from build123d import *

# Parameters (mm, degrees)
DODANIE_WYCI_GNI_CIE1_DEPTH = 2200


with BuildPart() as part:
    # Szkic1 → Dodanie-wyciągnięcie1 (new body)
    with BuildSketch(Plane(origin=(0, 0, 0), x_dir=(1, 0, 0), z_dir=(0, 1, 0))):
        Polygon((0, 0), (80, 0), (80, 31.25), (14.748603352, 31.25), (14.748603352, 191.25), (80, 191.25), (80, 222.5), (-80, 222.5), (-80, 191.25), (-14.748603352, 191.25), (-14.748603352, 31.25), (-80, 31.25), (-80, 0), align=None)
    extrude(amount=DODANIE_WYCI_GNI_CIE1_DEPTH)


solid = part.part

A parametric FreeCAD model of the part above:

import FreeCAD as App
import Part
import Sketcher

doc = App.newDocument("Part")
body = doc.addObject("PartDesign::Body", "Body")

# Sketch on XZ plane
sketch1 = doc.addObject("Sketcher::SketchObject", "Sketch")
body.addObject(sketch1)
sketch1.AttachmentSupport = (doc.XZ_Plane, [""])
sketch1.MapMode = "FlatFace"
sketch1.addGeometry([
    Part.LineSegment(App.Vector(80, 0, 0), App.Vector(80, -31, 0)),  # 0
    Part.LineSegment(App.Vector(80, -31, 0), App.Vector(15, -31, 0)),  # 1
    Part.LineSegment(App.Vector(15, -31, 0), App.Vector(15, -191, 0)),  # 2
    Part.LineSegment(App.Vector(15, -191, 0), App.Vector(80, -191, 0)),  # 3
    Part.LineSegment(App.Vector(80, -191, 0), App.Vector(80, -222, 0)),  # 4
    Part.LineSegment(App.Vector(80, -222, 0), App.Vector(-80, -222, 0)),  # 5
    Part.LineSegment(App.Vector(-80, -222, 0), App.Vector(-80, -191, 0)),  # 6
    Part.LineSegment(App.Vector(-80, -191, 0), App.Vector(-15, -191, 0)),  # 7
    Part.LineSegment(App.Vector(-15, -191, 0), App.Vector(-15, -31, 0)),  # 8
    Part.LineSegment(App.Vector(-15, -31, 0), App.Vector(-80, -31, 0)),  # 9
    Part.LineSegment(App.Vector(-80, -31, 0), App.Vector(-80, 0, 0)),  # 10
    Part.LineSegment(App.Vector(-80, 0, 0), App.Vector(80, 0, 0)),  # 11
], False)
sketch1.addConstraint([
    Sketcher.Constraint("Coincident", 0, 2, 1, 1),
    Sketcher.Constraint("Coincident", 1, 2, 2, 1),
    Sketcher.Constraint("Coincident", 2, 2, 3, 1),
    Sketcher.Constraint("Coincident", 3, 2, 4, 1),
    Sketcher.Constraint("Coincident", 4, 2, 5, 1),
    Sketcher.Constraint("Coincident", 5, 2, 6, 1),
    Sketcher.Constraint("Coincident", 6, 2, 7, 1),
    Sketcher.Constraint("Coincident", 7, 2, 8, 1),
    Sketcher.Constraint("Coincident", 8, 2, 9, 1),
    Sketcher.Constraint("Coincident", 9, 2, 10, 1),
    Sketcher.Constraint("Coincident", 10, 2, 11, 1),
    Sketcher.Constraint("Coincident", 11, 2, 0, 1),
    Sketcher.Constraint("Vertical", 0),
    Sketcher.Constraint("Horizontal", 1),
    Sketcher.Constraint("Vertical", 2),
    Sketcher.Constraint("Horizontal", 3),
    Sketcher.Constraint("Vertical", 4),
    Sketcher.Constraint("Horizontal", 5),
    Sketcher.Constraint("Vertical", 6),
    Sketcher.Constraint("Horizontal", 7),
    Sketcher.Constraint("Vertical", 8),
    Sketcher.Constraint("Horizontal", 9),
    Sketcher.Constraint("Vertical", 10),
    Sketcher.Constraint("Horizontal", 11),
    Sketcher.Constraint("Symmetric", 10, 2, 11, 2, -1, 1),
    Sketcher.Constraint("Symmetric", 3, 2, 6, 2, -2),
    Sketcher.Constraint("Symmetric", 1, 2, 8, 2, -2),
    Sketcher.Constraint("Vertical", 0, 2, 3, 2),
    Sketcher.Constraint("Equal", 11, 2),
    Sketcher.Constraint("Equal", 0, 4),
    Sketcher.Constraint("DistanceX", 5, 2, 5, 1, 160.0),
    Sketcher.Constraint("DistanceY", 0, 2, 0, 1, 31.25),
    Sketcher.Constraint("DistanceX", 1, 2, 1, 1, 65.251397),
])
pad1 = doc.addObject("PartDesign::Pad", "Pad")
body.addObject(pad1)
pad1.Profile = sketch1
pad1.Length = 2200
pad1.Reversed = True

doc.recompute()
